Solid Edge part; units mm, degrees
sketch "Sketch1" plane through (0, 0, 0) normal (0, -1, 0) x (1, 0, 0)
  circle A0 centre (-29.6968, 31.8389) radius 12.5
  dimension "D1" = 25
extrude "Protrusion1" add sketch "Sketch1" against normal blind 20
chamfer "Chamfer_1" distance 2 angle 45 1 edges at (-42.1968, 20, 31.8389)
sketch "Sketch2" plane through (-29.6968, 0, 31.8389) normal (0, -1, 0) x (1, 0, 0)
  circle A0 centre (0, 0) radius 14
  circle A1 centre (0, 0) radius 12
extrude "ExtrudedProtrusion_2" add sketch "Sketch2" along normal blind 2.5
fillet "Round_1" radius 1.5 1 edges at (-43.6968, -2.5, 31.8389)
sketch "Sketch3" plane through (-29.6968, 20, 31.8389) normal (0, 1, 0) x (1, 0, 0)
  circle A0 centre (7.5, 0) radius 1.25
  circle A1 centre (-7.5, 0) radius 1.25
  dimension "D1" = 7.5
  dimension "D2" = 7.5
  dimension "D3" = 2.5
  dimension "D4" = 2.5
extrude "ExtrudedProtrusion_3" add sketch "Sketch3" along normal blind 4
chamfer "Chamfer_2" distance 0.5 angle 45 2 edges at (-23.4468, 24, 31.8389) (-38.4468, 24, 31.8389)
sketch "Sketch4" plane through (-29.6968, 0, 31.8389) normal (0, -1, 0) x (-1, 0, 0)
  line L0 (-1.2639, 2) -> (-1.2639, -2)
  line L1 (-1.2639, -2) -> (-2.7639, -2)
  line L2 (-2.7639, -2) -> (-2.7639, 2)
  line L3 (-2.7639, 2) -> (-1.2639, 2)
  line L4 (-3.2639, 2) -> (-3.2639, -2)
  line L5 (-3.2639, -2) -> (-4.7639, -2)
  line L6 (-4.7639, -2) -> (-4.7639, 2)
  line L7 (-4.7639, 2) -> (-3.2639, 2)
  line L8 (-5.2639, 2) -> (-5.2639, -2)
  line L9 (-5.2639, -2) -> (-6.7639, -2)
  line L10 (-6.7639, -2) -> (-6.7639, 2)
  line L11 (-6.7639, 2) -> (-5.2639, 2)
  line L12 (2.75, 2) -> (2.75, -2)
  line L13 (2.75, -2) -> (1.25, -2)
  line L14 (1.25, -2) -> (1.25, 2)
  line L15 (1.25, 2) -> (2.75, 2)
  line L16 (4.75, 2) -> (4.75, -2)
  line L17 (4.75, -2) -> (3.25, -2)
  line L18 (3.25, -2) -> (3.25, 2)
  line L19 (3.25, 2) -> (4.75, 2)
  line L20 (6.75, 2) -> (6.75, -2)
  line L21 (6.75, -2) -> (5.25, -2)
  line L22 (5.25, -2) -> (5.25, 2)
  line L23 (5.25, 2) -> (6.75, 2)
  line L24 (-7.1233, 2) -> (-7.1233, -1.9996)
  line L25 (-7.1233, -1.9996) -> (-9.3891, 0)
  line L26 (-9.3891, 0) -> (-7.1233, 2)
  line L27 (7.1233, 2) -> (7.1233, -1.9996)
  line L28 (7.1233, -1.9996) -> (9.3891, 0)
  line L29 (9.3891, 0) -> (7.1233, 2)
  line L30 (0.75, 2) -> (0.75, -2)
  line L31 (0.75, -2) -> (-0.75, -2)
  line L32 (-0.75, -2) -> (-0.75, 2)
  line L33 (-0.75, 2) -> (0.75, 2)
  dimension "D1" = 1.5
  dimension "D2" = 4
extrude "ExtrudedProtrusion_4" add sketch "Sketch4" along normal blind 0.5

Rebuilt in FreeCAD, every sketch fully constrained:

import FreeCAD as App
import Part
import Sketcher
from FreeCAD import Vector
Q = App.Units.Quantity


def edges_at(feature, points):
    """Names of the edges that pass closest to the given points."""
    edges = feature.Shape.Edges
    near = lambda p: min(range(len(edges)), key=lambda i: edges[i].distToShape(Part.Vertex(*p))[0])
    return sorted({f"Edge{near(p) + 1}" for p in points})


def add_polygon(sketch, points):
    """Adds a closed chain of lines whose ends are joined by coincident constraints."""
    first, n = sketch.GeometryCount, len(points)
    for a, b in zip(points, points[1:] + points[:1]):
        sketch.addGeometry(Part.LineSegment(App.Vector(*a, 0), App.Vector(*b, 0)), False)
    for i in range(n):
        sketch.addConstraint(Sketcher.Constraint("Coincident", first + i, 2, first + (i + 1) % n, 1))

doc = App.newDocument("Part")
params = doc.addObject("Spreadsheet::Sheet", "Params")
for row, (alias, value) in enumerate([
    ("sketch1_diameter", "25 mm"),
    ("pad1_length", "20 mm"),
    ("chamfer_size", "2 mm"),
    ("sketch2_diameter", "28 mm"),
    ("sketch2_diameter2", "24 mm"),
    ("pad2_length", "2.5 mm"),
    ("fillet_radius", "1.5 mm"),
    ("sketch3_diameter", "2.5 mm"),
    ("pad3_length", "4 mm"),
    ("chamfer2_size", "0.5 mm"),
    ("sketch4_height", "4 mm"),
    ("sketch4_width", "1.5 mm"),
    ("pad4_length", "0.5 mm"),
], start=1):
    params.set(f"A{row}", alias)
    params.set(f"B{row}", "=" + value)
    params.setAlias(f"B{row}", alias)

body = doc.addObject("PartDesign::Body", "Body")

# Sketch on XZ plane
sketch1 = body.newObject("Sketcher::SketchObject", "Sketch")
sketch1.AttachmentSupport = (doc.getObject("XZ_Plane"), [""])
sketch1.MapMode = "FlatFace"
sketch1.addGeometry(Part.Circle(Vector(-29.6968, 31.8389, 0), Vector(0, 0, 1), 12.5), False)
sketch1.addConstraint([
    Sketcher.Constraint("Diameter", 0, Q("25 mm")),
    Sketcher.Constraint("DistanceY", -1, 1, 0, 3, Q("31.839 mm")),
    Sketcher.Constraint("DistanceX", 0, 3, -1, 1, Q("29.6968 mm")),
])
sketch1.setExpression("Constraints[0]", "Params.sketch1_diameter")
pad1 = body.newObject("PartDesign::Pad", "Pad")
pad1.Profile = sketch1
pad1.setExpression("Length", "Params.pad1_length")
pad1.Reversed = True
doc.recompute()

chamfer = body.newObject("PartDesign::Chamfer", "Chamfer")
chamfer.Base = (pad1, edges_at(pad1, [(-42.197, 20, 31.839)]))
chamfer.setExpression("Size", "Params.chamfer_size")

# Sketch on XZ plane
sketch2 = body.newObject("Sketcher::SketchObject", "Sketch001")
sketch2.AttachmentSupport = (doc.getObject("XZ_Plane"), [""])
sketch2.MapMode = "FlatFace"
sketch2.addGeometry([
    Part.Circle(Vector(-29.6968, 31.8389, 0), Vector(0, 0, 1), 14),
    Part.Circle(Vector(-29.6968, 31.8389, 0), Vector(0, 0, 1), 12),
], False)
sketch2.addConstraint([
    Sketcher.Constraint("Coincident", 1, 3, 0, 3),
    Sketcher.Constraint("Diameter", 0, Q("28 mm")),
    Sketcher.Constraint("Diameter", 1, Q("24 mm")),
    Sketcher.Constraint("DistanceY", -1, 1, 0, 3, Q("31.839 mm")),
    Sketcher.Constraint("DistanceX", 0, 3, -1, 1, Q("29.6968 mm")),
])
sketch2.setExpression("Constraints[1]", "Params.sketch2_diameter")
sketch2.setExpression("Constraints[2]", "Params.sketch2_diameter2")
pad2 = body.newObject("PartDesign::Pad", "Pad001")
pad2.Profile = sketch2
pad2.setExpression("Length", "Params.pad2_length")
doc.recompute()

fillet = body.newObject("PartDesign::Fillet", "Fillet")
fillet.Base = (pad2, edges_at(pad2, [(-43.697, -2.5, 31.839)]))
fillet.setExpression("Radius", "Params.fillet_radius")

# Sketch on XZ plane
sketch3 = body.newObject("Sketcher::SketchObject", "Sketch002")
sketch3.AttachmentSupport = (doc.getObject("XZ_Plane"), [""])
sketch3.MapMode = "FlatFace"
sketch3.AttachmentOffset = App.Placement(Vector(0, 0, -20), App.Rotation())
sketch3.addGeometry([
    Part.Circle(Vector(-22.1968, 31.8389, 0), Vector(0, 0, 1), 1.25),
    Part.Circle(Vector(-37.1968, 31.8389, 0), Vector(0, 0, 1), 1.25),
], False)
sketch3.addConstraint([
    Sketcher.Constraint("Equal", 0, 1),
    Sketcher.Constraint("Horizontal", 0, 3, 1, 3),
    Sketcher.Constraint("Diameter", 0, Q("2.5 mm")),
    Sketcher.Constraint("DistanceX", 1, 3, 0, 3, Q("15 mm")),
    Sketcher.Constraint("DistanceY", -1, 1, 0, 3, Q("31.839 mm")),
    Sketcher.Constraint("DistanceX", 0, 3, -1, 1, Q("22.1968 mm")),
])
sketch3.setExpression("Constraints[2]", "Params.sketch3_diameter")
pad3 = body.newObject("PartDesign::Pad", "Pad002")
pad3.Profile = sketch3
pad3.setExpression("Length", "Params.pad3_length")
pad3.Reversed = True
doc.recompute()

chamfer2 = body.newObject("PartDesign::Chamfer", "Chamfer001")
chamfer2.Base = (pad3, edges_at(pad3, [(-23.447, 24, 31.839), (-38.447, 24, 31.839)]))
chamfer2.setExpression("Size", "Params.chamfer2_size")

# Sketch on XZ plane
sketch4 = body.newObject("Sketcher::SketchObject", "Sketch003")
sketch4.AttachmentSupport = (doc.getObject("XZ_Plane"), [""])
sketch4.MapMode = "FlatFace"
add_polygon(sketch4, [(-28.4329, 33.8389), (-28.4329, 29.8389), (-26.9329, 29.8389), (-26.9329, 33.8389)])  # lines 0-3
add_polygon(sketch4, [(-26.4329, 33.8389), (-26.4329, 29.8389), (-24.9329, 29.8389), (-24.9329, 33.8389)])  # lines 4-7
add_polygon(sketch4, [(-24.4329, 33.8389), (-24.4329, 29.8389), (-22.9329, 29.8389), (-22.9329, 33.8389)])  # lines 8-11
add_polygon(sketch4, [(-32.4468, 33.8389), (-32.4468, 29.8389), (-30.9468, 29.8389), (-30.9468, 33.8389)])  # lines 12-15
add_polygon(sketch4, [(-34.4468, 33.8389), (-34.4468, 29.8389), (-32.9468, 29.8389), (-32.9468, 33.8389)])  # lines 16-19
add_polygon(sketch4, [(-36.4468, 33.8389), (-36.4468, 29.8389), (-34.9468, 29.8389), (-34.9468, 33.8389)])  # lines 20-23
add_polygon(sketch4, [(-22.5735, 33.8385), (-22.5735, 29.8389), (-20.3077, 31.8389)])  # lines 24-26
add_polygon(sketch4, [(-39.0859, 31.8389), (-36.8201, 29.8389), (-36.8201, 33.8385)])  # lines 27-29
add_polygon(sketch4, [(-30.4468, 33.8389), (-30.4468, 29.8389), (-28.9468, 29.8389), (-28.9468, 33.8389)])  # lines 30-33
sketch4.addConstraint([
    Sketcher.Constraint("Vertical", 0),
    Sketcher.Constraint("Horizontal", 1),
    Sketcher.Constraint("Vertical", 2),
    Sketcher.Constraint("Horizontal", 3),
    Sketcher.Constraint("Vertical", 4),
    Sketcher.Constraint("Horizontal", 5),
    Sketcher.Constraint("Vertical", 6),
    Sketcher.Constraint("Horizontal", 7),
    Sketcher.Constraint("Vertical", 8),
    Sketcher.Constraint("Horizontal", 9),
    Sketcher.Constraint("Vertical", 10),
    Sketcher.Constraint("Horizontal", 11),
    Sketcher.Constraint("Vertical", 12),
    Sketcher.Constraint("Horizontal", 13),
    Sketcher.Constraint("Vertical", 14),
    Sketcher.Constraint("Horizontal", 15),
    Sketcher.Constraint("Vertical", 16),
    Sketcher.Constraint("Horizontal", 17),
    Sketcher.Constraint("Vertical", 18),
    Sketcher.Constraint("Horizontal", 19),
    Sketcher.Constraint("Vertical", 20),
    Sketcher.Constraint("Horizontal", 21),
    Sketcher.Constraint("Vertical", 22),
    Sketcher.Constraint("Horizontal", 23),
    Sketcher.Constraint("Vertical", 24),
    Sketcher.Constraint("Vertical", 28),
    Sketcher.Constraint("Vertical", 30),
    Sketcher.Constraint("Horizontal", 31),
    Sketcher.Constraint("Vertical", 32),
    Sketcher.Constraint("Horizontal", 33),
    Sketcher.Constraint("Parallel", 26, 27),
    Sketcher.Constraint("Parallel", 25, 29),
    Sketcher.Constraint("Horizontal", 1, 2, 4, 2),
    Sketcher.Constraint("Horizontal", 3, 2, 6, 2),
    Sketcher.Constraint("Horizontal", 5, 2, 8, 2),
    Sketcher.Constraint("Horizontal", 7, 2, 10, 2),
    Sketcher.Constraint("Horizontal", 9, 2, 12, 2),
    Sketcher.Constraint("Horizontal", 11, 2, 14, 2),
    Sketcher.Constraint("Horizontal", 13, 2, 16, 2),
    Sketcher.Constraint("Horizontal", 15, 2, 18, 2),
    Sketcher.Constraint("Horizontal", 17, 2, 20, 2),
    Sketcher.Constraint("Horizontal", 19, 2, 22, 2),
    Sketcher.Constraint("Horizontal", 21, 2, 24, 2),
    Sketcher.Constraint("Horizontal", 24, 2, 27, 2),
    Sketcher.Constraint("Horizontal", 26, 2, 28, 2),
    Sketcher.Constraint("Horizontal", 25, 2, 29, 2),
    Sketcher.Constraint("Horizontal", 27, 2, 30, 2),
    Sketcher.Constraint("Horizontal", 23, 2, 32, 2),
    Sketcher.Constraint("Equal", 3, 5),
    Sketcher.Constraint("Equal", 7, 9),
    Sketcher.Constraint("Equal", 11, 13),
    Sketcher.Constraint("Equal", 15, 17),
    Sketcher.Constraint("Equal", 19, 21),
    Sketcher.Constraint("Equal", 23, 31),
    Sketcher.Constraint("DistanceY", 0, 2, 0, 1, Q("4 mm")),
    Sketcher.Constraint("DistanceX", 1, 1, 1, 2, Q("1.5 mm")),
    Sketcher.Constraint("DistanceX", 0, 2, 4, 2, Q("2 mm")),
    Sketcher.Constraint("DistanceX", 4, 2, 8, 2, Q("2 mm")),
    Sketcher.Constraint("DistanceX", 16, 2, 12, 2, Q("2 mm")),
    Sketcher.Constraint("DistanceX", 20, 2, 16, 2, Q("2 mm")),
    Sketcher.Constraint("DistanceY", 24, 2, 25, 2, Q("2 mm")),
    Sketcher.Constraint("DistanceX", 12, 2, 30, 2, Q("2 mm")),
    Sketcher.Constraint("Angle", 26, Q("138.5711 deg")),
    Sketcher.Constraint("DistanceX", 27, 2, -1, 1, Q("36.82 mm")),
    Sketcher.Constraint("DistanceX", 0, 2, -1, 1, Q("28.433 mm")),
    Sketcher.Constraint("DistanceY", -1, 1, 0, 2, Q("29.839 mm")),
    Sketcher.Constraint("DistanceX", 12, 2, 0, 2, Q("4.014 mm")),
    Sketcher.Constraint("DistanceX", 24, 2, -1, 1, Q("22.5735 mm")),
])
sketch4.setExpression("Constraints[88]", "Params.sketch4_height")
sketch4.setExpression("Constraints[89]", "Params.sketch4_width")
pad4 = body.newObject("PartDesign::Pad", "Pad003")
pad4.Profile = sketch4
pad4.setExpression("Length", "Params.pad4_length")

doc.recompute()
